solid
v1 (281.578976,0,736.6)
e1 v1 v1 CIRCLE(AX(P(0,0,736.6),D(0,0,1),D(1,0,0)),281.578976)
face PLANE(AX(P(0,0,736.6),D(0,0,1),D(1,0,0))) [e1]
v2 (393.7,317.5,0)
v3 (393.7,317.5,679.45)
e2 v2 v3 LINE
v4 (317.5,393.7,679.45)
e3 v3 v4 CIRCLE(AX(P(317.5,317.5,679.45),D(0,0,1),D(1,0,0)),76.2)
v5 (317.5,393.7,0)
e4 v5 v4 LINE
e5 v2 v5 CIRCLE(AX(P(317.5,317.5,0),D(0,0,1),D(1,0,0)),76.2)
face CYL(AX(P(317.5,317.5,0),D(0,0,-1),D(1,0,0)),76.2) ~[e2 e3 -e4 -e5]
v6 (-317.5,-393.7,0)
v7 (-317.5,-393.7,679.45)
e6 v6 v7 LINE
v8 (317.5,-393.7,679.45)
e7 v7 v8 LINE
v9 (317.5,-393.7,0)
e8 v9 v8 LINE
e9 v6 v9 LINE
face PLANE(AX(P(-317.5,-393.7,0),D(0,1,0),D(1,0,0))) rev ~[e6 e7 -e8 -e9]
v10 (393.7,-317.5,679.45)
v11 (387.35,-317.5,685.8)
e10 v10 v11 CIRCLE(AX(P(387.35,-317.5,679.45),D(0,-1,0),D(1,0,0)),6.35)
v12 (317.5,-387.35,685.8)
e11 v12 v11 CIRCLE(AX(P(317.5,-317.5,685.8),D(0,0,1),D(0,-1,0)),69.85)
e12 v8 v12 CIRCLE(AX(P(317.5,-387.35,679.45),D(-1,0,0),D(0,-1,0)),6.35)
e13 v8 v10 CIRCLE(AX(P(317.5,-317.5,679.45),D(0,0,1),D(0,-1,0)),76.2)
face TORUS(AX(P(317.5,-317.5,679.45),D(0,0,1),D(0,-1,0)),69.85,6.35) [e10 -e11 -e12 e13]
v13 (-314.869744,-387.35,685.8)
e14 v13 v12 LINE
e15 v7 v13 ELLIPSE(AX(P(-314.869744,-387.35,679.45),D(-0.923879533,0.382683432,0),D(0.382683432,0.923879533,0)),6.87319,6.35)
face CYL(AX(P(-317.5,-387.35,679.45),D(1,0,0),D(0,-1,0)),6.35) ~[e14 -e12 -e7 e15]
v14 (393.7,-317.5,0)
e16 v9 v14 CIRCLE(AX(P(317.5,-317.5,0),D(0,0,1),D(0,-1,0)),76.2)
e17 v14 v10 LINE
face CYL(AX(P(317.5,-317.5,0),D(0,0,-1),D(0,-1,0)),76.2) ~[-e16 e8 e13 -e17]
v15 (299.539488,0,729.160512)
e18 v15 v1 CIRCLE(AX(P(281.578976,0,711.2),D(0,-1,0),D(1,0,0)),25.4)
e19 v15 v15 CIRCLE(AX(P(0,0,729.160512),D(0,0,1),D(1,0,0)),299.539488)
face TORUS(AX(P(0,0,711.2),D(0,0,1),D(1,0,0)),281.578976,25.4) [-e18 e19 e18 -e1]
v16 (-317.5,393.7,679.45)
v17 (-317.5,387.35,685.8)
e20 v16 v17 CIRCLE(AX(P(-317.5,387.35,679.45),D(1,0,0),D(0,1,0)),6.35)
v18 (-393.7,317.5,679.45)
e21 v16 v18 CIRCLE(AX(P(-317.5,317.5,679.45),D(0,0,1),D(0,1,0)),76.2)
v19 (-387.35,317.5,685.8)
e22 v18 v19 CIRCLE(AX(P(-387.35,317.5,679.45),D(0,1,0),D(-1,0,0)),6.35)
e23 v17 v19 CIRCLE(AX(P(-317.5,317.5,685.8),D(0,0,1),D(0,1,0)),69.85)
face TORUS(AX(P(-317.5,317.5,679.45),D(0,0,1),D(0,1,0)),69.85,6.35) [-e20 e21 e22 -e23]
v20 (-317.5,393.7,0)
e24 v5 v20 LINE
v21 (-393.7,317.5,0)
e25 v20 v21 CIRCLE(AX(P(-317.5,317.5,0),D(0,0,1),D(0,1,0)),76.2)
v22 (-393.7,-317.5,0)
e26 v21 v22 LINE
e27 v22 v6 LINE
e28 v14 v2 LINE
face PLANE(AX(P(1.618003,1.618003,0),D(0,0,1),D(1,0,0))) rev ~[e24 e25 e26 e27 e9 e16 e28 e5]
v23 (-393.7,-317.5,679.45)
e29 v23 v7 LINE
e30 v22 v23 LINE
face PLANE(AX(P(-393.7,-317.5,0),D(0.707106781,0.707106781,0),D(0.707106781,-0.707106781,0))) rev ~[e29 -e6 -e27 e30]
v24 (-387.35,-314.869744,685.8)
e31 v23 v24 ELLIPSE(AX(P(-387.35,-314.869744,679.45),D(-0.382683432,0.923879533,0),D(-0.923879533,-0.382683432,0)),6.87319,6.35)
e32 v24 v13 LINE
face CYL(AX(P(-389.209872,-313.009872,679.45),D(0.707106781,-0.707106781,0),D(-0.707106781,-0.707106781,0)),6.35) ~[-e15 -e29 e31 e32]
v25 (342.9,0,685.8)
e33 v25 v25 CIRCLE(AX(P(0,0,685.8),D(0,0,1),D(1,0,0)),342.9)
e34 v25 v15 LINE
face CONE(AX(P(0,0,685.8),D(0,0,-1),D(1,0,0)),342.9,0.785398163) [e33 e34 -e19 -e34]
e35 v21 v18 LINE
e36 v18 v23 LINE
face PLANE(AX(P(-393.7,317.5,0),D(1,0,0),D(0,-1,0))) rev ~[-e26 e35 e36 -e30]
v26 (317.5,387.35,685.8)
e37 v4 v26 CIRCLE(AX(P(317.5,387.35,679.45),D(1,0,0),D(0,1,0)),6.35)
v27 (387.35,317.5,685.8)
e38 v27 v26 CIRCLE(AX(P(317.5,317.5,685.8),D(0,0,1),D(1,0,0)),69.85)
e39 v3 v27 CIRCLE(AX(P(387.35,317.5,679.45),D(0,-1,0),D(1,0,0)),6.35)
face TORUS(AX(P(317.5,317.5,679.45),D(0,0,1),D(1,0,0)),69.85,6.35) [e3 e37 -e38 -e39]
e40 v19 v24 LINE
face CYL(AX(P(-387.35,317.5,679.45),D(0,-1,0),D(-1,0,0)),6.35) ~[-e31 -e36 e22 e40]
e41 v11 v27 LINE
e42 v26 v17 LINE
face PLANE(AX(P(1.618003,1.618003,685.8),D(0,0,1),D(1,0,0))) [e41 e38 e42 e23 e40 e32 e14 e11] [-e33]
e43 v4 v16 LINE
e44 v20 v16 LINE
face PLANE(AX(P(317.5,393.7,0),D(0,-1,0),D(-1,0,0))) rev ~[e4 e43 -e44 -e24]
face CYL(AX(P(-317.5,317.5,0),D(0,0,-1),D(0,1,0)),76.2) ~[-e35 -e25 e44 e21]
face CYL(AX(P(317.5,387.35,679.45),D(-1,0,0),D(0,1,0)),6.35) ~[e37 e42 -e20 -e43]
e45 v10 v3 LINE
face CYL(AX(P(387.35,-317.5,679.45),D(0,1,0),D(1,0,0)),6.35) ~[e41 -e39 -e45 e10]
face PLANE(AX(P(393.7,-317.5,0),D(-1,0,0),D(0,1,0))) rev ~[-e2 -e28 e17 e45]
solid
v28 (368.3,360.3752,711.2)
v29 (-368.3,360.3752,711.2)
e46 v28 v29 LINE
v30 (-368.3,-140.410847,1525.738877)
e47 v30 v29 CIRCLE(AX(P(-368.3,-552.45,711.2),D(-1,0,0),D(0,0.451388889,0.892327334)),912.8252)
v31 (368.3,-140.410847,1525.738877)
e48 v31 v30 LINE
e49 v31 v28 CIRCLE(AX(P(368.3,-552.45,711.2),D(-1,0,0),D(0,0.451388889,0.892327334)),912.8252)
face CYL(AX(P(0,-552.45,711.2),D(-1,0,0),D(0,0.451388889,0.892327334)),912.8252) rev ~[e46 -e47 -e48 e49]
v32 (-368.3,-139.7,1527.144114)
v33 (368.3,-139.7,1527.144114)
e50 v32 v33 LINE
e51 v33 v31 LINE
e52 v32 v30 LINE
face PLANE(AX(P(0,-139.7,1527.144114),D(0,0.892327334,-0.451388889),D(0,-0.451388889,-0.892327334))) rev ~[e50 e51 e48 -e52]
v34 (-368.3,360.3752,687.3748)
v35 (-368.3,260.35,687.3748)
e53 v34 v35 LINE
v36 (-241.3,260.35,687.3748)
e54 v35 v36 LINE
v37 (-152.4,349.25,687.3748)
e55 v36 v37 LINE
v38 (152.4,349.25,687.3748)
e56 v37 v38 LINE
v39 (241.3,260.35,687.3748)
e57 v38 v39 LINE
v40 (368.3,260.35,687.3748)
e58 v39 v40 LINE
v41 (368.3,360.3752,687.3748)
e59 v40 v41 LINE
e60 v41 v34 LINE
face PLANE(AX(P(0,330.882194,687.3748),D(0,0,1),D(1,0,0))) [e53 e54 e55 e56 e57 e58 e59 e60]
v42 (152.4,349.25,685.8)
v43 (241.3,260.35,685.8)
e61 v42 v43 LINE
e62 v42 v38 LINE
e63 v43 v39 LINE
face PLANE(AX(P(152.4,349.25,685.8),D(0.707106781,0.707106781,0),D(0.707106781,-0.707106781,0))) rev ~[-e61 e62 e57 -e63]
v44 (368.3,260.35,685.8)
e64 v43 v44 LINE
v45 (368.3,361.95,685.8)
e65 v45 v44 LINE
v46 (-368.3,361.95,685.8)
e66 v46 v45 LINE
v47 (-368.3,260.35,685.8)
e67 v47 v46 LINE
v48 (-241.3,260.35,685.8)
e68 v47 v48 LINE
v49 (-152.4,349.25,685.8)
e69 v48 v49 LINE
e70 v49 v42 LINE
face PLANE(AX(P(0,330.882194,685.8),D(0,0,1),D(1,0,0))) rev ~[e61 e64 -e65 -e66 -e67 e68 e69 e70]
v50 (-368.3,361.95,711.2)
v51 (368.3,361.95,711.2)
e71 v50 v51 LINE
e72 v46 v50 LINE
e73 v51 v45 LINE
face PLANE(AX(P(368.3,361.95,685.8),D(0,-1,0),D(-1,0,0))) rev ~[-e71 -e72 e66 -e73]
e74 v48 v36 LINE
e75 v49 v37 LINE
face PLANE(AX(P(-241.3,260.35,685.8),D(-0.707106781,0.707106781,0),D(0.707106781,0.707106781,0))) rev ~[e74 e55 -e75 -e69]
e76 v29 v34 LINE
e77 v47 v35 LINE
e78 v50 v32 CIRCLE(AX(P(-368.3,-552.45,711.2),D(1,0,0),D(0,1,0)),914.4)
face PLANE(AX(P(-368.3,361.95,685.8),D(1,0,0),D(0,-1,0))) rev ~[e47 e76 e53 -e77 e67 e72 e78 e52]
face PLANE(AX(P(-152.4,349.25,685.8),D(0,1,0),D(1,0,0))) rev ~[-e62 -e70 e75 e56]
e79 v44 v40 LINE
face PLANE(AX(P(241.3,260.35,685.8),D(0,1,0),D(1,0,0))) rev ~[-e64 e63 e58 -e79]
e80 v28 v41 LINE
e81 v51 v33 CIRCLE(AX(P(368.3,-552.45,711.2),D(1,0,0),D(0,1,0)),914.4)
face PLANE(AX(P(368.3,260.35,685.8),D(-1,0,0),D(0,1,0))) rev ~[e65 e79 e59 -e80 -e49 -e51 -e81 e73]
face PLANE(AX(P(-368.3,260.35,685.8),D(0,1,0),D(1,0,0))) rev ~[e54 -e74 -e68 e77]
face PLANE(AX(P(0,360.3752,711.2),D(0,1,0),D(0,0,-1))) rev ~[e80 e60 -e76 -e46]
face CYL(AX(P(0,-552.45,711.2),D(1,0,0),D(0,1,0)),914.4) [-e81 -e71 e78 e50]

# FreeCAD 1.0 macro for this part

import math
import FreeCAD as App
import Part
import Sketcher
from FreeCAD import Vector
Q = App.Units.Quantity


def edges_at(feature, points):
    """Names of the edges that pass closest to the given points."""
    edges = feature.Shape.Edges
    near = lambda p: min(range(len(edges)), key=lambda i: edges[i].distToShape(Part.Vertex(*p))[0])
    return sorted({f"Edge{near(p) + 1}" for p in points})

doc = App.newDocument("Part")
body = doc.addObject("PartDesign::Body", "Body")

# Sketch on XY plane
sketch1 = body.newObject("Sketcher::SketchObject", "Sketch")
sketch1.AttachmentSupport = (doc.getObject("XY_Plane"), [""])
sketch1.MapMode = "FlatFace"
sketch1.addGeometry([
    Part.LineSegment(Vector(-318, -394, 0), Vector(318, -394, 0)),  # 0
    Part.ArcOfCircle(Part.Circle(Vector(318, -318, 0), Vector(0, 0, 1), 76), math.radians(-90), math.radians(0)),  # 1
    Part.LineSegment(Vector(394, -318, 0), Vector(394, 318, 0)),  # 2
    Part.ArcOfCircle(Part.Circle(Vector(318, 318, 0), Vector(0, 0, 1), 76), math.radians(0), math.radians(90)),  # 3
    Part.LineSegment(Vector(318, 394, 0), Vector(-318, 394, 0)),  # 4
    Part.ArcOfCircle(Part.Circle(Vector(-318, 318, 0), Vector(0, 0, 1), 76), math.radians(90), math.radians(180)),  # 5
    Part.LineSegment(Vector(-394, 318, 0), Vector(-394, -318, 0)),  # 6
    Part.LineSegment(Vector(-394, -318, 0), Vector(-318, -394, 0)),  # 7
], False)
sketch1.addConstraint([
    Sketcher.Constraint("Tangent", 0, 2, 1, 1),
    Sketcher.Constraint("Tangent", 1, 2, 2, 1),
    Sketcher.Constraint("Tangent", 2, 2, 3, 1),
    Sketcher.Constraint("Tangent", 3, 2, 4, 1),
    Sketcher.Constraint("Tangent", 4, 2, 5, 1),
    Sketcher.Constraint("Tangent", 5, 2, 6, 1),
    Sketcher.Constraint("Coincident", 6, 2, 7, 1),
    Sketcher.Constraint("Coincident", 7, 2, 0, 1),
    Sketcher.Constraint("Horizontal", 0),
    Sketcher.Constraint("Vertical", 2),
    Sketcher.Constraint("Horizontal", 4),
    Sketcher.Constraint("Vertical", 6),
    Sketcher.Constraint("Equal", 1, 3),
    Sketcher.Constraint("Equal", 3, 5),
    Sketcher.Constraint("Symmetric", 1, 3, 5, 3, -1, 1),
    Sketcher.Constraint("Horizontal", 1, 2, 6, 2),
    Sketcher.Constraint("Vertical", 4, 2, 7, 2),
    Sketcher.Constraint("Equal", 4, 2),
    Sketcher.Constraint("Radius", 1, Q("3 in")),
    Sketcher.Constraint("DistanceX", 0, 1, 0, 2, Q("25 in")),
])
pad1 = body.newObject("PartDesign::Pad", "Pad")
pad1.Profile = sketch1
pad1.Length = Q("27 in")

# Sketch on XZ plane
sketch2 = body.newObject("Sketcher::SketchObject", "Sketch001")
sketch2.AttachmentSupport = (doc.getObject("XZ_Plane"), [""])
sketch2.MapMode = "FlatFace"
sketch2.addGeometry([
    Part.LineSegment(Vector(292, 737, 0), Vector(0, 737, 0)),
    Part.LineSegment(Vector(0, 737, 0), Vector(0, 686, 0)),
    Part.LineSegment(Vector(0, 686, 0), Vector(343, 686, 0)),
    Part.LineSegment(Vector(343, 686, 0), Vector(292, 737, 0)),
], False)
sketch2.addConstraint([
    Sketcher.Constraint("Coincident", 0, 2, 1, 1),
    Sketcher.Constraint("Coincident", 1, 2, 2, 1),
    Sketcher.Constraint("Coincident", 2, 2, 3, 1),
    Sketcher.Constraint("Coincident", 3, 2, 0, 1),
    Sketcher.Constraint("Horizontal", 0),
    Sketcher.Constraint("Vertical", 1),
    Sketcher.Constraint("Horizontal", 2),
    Sketcher.Constraint("PointOnObject", 0, 2, -2),
    Sketcher.Constraint("DistanceY", 1, 2, 1, 1, Q("2 in")),
    Sketcher.Constraint("DistanceX", 0, 2, 0, 1, Q("11.5 in")),
    Sketcher.Constraint("DistanceX", 2, 1, 2, 2, Q("13.5 in")),
    Sketcher.Constraint("DistanceY", -1, 1, 0, 2, Q("29 in")),
])
revolution = body.newObject("PartDesign::Revolution", "Revolution")
revolution.Profile = sketch2
revolution.ReferenceAxis = (sketch2, ["V_Axis"])
revolution.Angle = 360
doc.recompute()

fillet = body.newObject("PartDesign::Fillet", "Fillet")
fillet.Base = (revolution, edges_at(revolution, [(371.382, -371.382, 685.8), (-355.6, -355.6, 685.8)]))
fillet.Radius = Q("0.25 in")
doc.recompute()

fillet2 = body.newObject("PartDesign::Fillet", "Fillet001")
fillet2.Base = (fillet, edges_at(fillet, [(-292.1, 0, 736.6)]))
fillet2.Radius = Q("1 in")
body2 = doc.addObject("PartDesign::Body", "Body001")

# Sketch on XY plane
sketch3 = body2.newObject("Sketcher::SketchObject", "Sketch002")
sketch3.AttachmentSupport = (doc.getObject("XY_Plane001"), [""])
sketch3.MapMode = "FlatFace"
sketch3.AttachmentOffset = App.Placement(Vector(0, 0, 27 * 25.4), App.Rotation())
sketch3.addGeometry([
    Part.LineSegment(Vector(152, 349, 0), Vector(241, 260, 0)),  # 0
    Part.LineSegment(Vector(241, 260, 0), Vector(368, 260, 0)),  # 1
    Part.LineSegment(Vector(368, 260, 0), Vector(368, 362, 0)),  # 2
    Part.LineSegment(Vector(368, 362, 0), Vector(-368, 362, 0)),  # 3
    Part.LineSegment(Vector(-368, 362, 0), Vector(-368, 260, 0)),  # 4
    Part.LineSegment(Vector(-368, 260, 0), Vector(-241, 260, 0)),  # 5
    Part.LineSegment(Vector(-241, 260, 0), Vector(-152, 349, 0)),  # 6
    Part.LineSegment(Vector(-152, 349, 0), Vector(152, 349, 0)),  # 7
], False)
sketch3.addConstraint([
    Sketcher.Constraint("Coincident", 0, 2, 1, 1),
    Sketcher.Constraint("Coincident", 1, 2, 2, 1),
    Sketcher.Constraint("Coincident", 2, 2, 3, 1),
    Sketcher.Constraint("Coincident", 3, 2, 4, 1),
    Sketcher.Constraint("Coincident", 4, 2, 5, 1),
    Sketcher.Constraint("Coincident", 5, 2, 6, 1),
    Sketcher.Constraint("Coincident", 6, 2, 7, 1),
    Sketcher.Constraint("Coincident", 7, 2, 0, 1),
    Sketcher.Constraint("Horizontal", 1),
    Sketcher.Constraint("Vertical", 2),
    Sketcher.Constraint("Horizontal", 3),
    Sketcher.Constraint("Vertical", 4),
    Sketcher.Constraint("Horizontal", 5),
    Sketcher.Constraint("Horizontal", 7),
    Sketcher.Constraint("Symmetric", 1, 2, 4, 2, -2),
    Sketcher.Constraint("Perpendicular", 0, 6),
    Sketcher.Constraint("Equal", 1, 5),
    Sketcher.Constraint("Equal", 0, 6),
    Sketcher.Constraint("DistanceX", 1, 1, 1, 2, Q("5 in")),
    Sketcher.Constraint("DistanceX", 3, 2, 3, 1, Q("29 in")),
    Sketcher.Constraint("DistanceX", 7, 1, 7, 2, Q("12 in")),
    Sketcher.Constraint("DistanceY", 2, 1, 2, 2, Q("4 in")),
    Sketcher.Constraint("DistanceY", -1, 1, 0, 2, Q("10.25 in")),
])
pad2 = body2.newObject("PartDesign::Pad", "Pad001")
pad2.Profile = sketch3
pad2.Length = Q("0.062 in")

# Sketch on YZ plane
sketch4 = body2.newObject("Sketcher::SketchObject", "Sketch003")
sketch4.AttachmentSupport = (doc.getObject("YZ_Plane001"), [""])
sketch4.MapMode = "FlatFace"
sketch4.addGeometry([
    Part.LineSegment(Vector(360.4, 685.8, 0), Vector(361.9, 685.8, 0)),  # 0
    Part.LineSegment(Vector(361.9, 685.8, 0), Vector(361.9, 711.2, 0)),  # 1
    Part.ArcOfCircle(Part.Circle(Vector(-552.5, 711.2, 0), Vector(0, 0, 1), 914.4), math.radians(0), math.radians(63)),  # 2
    Part.LineSegment(Vector(-139.7, 1527.1, 0), Vector(-140.4, 1525.7, 0)),  # 3
    Part.ArcOfCircle(Part.Circle(Vector(-552.5, 711.2, 0), Vector(0, 0, 1), 912.8), math.radians(0), math.radians(63)),  # 4
    Part.LineSegment(Vector(360.4, 711.2, 0), Vector(360.4, 685.8, 0)),  # 5
], False)
sketch4.addConstraint([
    Sketcher.Constraint("Coincident", 0, 2, 1, 1),
    Sketcher.Constraint("Tangent", 1, 2, 2, 1),
    Sketcher.Constraint("Coincident", 2, 2, 3, 1),
    Sketcher.Constraint("Coincident", 3, 2, 4, 2),
    Sketcher.Constraint("Tangent", 4, 1, 5, 1),
    Sketcher.Constraint("Coincident", 5, 2, 0, 1),
    Sketcher.Constraint("Horizontal", 0),
    Sketcher.Constraint("Vertical", 1),
    Sketcher.Constraint("Vertical", 5),
    Sketcher.Constraint("Coincident", 4, 3, 2, 3),
    Sketcher.Constraint("Radius", 2, Q("36 in")),
    Sketcher.Constraint("DistanceY", 1, 1, 1, 2, Q("1 in")),
    Sketcher.Constraint("DistanceY", -1, 1, 2, 3, Q("28 in")),
    Sketcher.Constraint("Radius", 4, Q("35.938 in")),
    Sketcher.Constraint("DistanceX", 2, 3, -1, 1, Q("21.75 in")),
    Sketcher.Constraint("DistanceX", 3, 2, -1, 1, Q("140.410847 mm")),
    Sketcher.Constraint("Angle", 3, Q("-116.832829 deg")),
])
pad3 = body2.newObject("PartDesign::Pad", "Pad002")
pad3.Profile = sketch4
pad3.Type = "TwoLengths"
pad3.Length = Q("14.5 in")
pad3.Length2 = Q("14.5 in")

doc.recompute()
